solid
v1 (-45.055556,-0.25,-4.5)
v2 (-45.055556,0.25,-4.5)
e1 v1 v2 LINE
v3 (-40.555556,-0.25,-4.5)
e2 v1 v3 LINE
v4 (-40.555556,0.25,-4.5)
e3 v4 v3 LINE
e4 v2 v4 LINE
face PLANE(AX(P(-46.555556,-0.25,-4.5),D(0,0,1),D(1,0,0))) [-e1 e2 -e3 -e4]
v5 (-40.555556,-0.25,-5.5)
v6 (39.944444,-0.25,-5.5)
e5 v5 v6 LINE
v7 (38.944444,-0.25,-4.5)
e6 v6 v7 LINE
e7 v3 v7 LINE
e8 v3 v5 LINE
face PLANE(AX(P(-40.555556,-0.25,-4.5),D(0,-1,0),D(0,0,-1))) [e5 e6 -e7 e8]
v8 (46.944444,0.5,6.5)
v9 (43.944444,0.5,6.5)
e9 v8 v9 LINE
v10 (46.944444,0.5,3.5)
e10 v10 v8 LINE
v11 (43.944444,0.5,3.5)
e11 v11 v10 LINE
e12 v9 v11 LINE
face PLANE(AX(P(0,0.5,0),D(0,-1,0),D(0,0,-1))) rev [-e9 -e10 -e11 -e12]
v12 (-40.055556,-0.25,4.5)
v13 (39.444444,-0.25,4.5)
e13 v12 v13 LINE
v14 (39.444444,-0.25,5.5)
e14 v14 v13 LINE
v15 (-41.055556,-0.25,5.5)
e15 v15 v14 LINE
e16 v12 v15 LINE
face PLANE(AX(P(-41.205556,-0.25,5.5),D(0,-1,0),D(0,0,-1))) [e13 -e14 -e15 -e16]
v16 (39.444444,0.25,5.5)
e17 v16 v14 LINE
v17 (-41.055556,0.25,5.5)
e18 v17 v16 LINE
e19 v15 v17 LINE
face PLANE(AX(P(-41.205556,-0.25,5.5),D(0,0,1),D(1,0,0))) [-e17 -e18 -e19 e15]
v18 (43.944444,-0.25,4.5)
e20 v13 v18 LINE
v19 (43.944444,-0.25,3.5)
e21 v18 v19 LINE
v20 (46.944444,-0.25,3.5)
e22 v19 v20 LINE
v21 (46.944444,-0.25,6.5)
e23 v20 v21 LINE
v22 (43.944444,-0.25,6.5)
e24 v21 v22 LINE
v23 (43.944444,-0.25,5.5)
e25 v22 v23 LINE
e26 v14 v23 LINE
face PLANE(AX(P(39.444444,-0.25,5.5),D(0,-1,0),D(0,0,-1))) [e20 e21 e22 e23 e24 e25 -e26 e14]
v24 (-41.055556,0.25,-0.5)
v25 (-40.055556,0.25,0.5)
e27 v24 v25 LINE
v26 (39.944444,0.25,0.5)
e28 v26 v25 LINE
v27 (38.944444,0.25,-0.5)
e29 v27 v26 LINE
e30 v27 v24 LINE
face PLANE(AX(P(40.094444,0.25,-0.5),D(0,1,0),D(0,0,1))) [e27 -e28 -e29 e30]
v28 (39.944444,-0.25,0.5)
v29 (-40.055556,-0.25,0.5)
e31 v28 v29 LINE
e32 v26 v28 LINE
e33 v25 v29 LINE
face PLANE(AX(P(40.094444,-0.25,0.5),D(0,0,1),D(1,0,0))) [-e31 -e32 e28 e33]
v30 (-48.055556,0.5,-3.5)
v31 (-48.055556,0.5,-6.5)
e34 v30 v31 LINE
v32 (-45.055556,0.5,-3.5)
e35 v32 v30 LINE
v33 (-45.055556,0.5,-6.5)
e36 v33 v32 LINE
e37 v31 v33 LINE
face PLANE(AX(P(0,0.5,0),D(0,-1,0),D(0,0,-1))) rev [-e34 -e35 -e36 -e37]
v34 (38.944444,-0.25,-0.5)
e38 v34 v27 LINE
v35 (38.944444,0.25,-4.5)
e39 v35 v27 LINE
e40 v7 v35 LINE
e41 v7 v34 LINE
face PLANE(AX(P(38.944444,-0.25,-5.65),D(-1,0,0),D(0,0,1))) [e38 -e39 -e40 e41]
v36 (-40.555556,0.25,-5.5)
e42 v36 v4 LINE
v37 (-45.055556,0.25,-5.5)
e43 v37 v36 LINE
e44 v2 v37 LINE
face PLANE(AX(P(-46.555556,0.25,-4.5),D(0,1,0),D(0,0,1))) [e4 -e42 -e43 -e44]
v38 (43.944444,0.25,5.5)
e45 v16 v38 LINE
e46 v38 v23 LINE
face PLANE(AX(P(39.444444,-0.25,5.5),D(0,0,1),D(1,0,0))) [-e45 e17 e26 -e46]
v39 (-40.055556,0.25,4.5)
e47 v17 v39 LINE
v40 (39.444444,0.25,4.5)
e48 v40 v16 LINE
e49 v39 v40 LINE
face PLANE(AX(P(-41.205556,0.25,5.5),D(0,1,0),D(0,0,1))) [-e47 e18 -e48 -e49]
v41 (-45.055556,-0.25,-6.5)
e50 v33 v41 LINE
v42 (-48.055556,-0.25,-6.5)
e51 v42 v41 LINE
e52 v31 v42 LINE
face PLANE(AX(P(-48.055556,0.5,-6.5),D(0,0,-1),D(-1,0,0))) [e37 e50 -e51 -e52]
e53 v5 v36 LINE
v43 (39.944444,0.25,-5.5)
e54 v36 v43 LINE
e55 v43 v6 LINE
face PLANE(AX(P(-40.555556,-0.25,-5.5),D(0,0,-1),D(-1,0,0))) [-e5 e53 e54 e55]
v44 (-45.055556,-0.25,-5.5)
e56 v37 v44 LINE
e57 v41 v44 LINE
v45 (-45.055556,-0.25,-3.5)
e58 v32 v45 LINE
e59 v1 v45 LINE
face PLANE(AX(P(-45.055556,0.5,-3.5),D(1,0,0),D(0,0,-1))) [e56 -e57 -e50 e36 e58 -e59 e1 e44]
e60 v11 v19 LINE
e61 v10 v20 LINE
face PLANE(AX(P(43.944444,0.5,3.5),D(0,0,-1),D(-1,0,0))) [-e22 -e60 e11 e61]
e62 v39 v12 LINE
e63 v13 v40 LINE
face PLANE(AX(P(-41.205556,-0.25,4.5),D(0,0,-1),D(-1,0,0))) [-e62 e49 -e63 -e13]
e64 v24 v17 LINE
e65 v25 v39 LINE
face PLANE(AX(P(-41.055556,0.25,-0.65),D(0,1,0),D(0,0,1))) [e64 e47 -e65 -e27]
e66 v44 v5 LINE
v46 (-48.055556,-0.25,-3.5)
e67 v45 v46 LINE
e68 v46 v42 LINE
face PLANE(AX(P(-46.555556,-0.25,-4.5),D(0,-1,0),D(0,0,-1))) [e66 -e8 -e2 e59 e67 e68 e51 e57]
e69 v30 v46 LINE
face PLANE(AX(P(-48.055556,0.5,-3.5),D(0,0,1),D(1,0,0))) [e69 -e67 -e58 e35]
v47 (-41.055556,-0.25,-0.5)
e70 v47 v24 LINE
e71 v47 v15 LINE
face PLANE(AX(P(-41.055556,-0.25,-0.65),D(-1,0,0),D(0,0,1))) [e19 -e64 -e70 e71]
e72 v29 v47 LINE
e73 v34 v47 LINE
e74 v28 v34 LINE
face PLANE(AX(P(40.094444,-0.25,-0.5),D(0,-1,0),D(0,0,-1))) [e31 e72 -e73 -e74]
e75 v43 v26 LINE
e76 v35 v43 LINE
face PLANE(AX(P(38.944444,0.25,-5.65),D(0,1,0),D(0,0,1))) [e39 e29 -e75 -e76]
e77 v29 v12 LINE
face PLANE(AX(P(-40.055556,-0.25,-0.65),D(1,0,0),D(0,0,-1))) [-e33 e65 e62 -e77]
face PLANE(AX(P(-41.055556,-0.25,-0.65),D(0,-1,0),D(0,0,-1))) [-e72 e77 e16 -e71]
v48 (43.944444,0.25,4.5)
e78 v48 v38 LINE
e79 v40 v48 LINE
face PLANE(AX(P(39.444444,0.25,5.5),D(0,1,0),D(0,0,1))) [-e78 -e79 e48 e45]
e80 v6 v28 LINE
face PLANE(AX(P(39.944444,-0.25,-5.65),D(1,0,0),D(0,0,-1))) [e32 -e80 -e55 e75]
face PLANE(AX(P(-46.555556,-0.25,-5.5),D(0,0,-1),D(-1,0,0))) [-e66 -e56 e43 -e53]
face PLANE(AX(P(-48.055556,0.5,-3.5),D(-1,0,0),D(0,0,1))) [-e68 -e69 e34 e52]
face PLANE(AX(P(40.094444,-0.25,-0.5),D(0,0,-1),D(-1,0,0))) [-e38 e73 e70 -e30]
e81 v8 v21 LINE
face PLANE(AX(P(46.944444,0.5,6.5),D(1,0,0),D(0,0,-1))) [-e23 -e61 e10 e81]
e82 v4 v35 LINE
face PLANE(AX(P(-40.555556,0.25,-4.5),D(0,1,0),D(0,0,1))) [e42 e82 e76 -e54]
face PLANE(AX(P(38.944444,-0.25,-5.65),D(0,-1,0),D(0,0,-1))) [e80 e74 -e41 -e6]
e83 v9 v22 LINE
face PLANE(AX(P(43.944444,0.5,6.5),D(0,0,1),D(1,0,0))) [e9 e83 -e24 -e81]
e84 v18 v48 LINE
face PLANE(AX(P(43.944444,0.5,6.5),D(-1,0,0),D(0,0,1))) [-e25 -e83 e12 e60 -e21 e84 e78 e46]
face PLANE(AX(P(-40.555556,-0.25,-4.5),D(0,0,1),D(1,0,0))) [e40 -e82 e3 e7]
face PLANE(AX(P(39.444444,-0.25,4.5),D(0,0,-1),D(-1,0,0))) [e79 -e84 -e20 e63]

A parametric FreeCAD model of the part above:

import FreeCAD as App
import Part
import Sketcher
from FreeCAD import Vector
Q = App.Units.Quantity

doc = App.newDocument("Part")
body = doc.addObject("PartDesign::Body", "Body")

sketch1 = doc.addObject("Sketcher::SketchObject", "Sketch")
body.addObject(sketch1)
sketch1.AttachmentSupport = (doc.YZ_Plane, [""])
sketch1.MapMode = "FlatFace"
sketch1.AttachmentOffset = App.Placement(Vector(0, 0, 45.444444), App.Rotation())
sketch1.addGeometry(Part.LineSegment(Vector(0.2, 5.5, 0), Vector(-0.2, 5.5, 0)), False)
sketch1.addGeometry(Part.LineSegment(Vector(-0.2, 5.5, 0), Vector(-0.2, 4.5, 0)), False)
sketch1.addGeometry(Part.LineSegment(Vector(-0.2, 4.5, 0), Vector(0.2, 4.5, 0)), False)
sketch1.addGeometry(Part.LineSegment(Vector(0.2, 4.5, 0), Vector(0.2, 5.5, 0)), False)
sketch1.addConstraint(Sketcher.Constraint("Coincident", 0, 2, 1, 1))
sketch1.addConstraint(Sketcher.Constraint("Coincident", 1, 2, 2, 1))
sketch1.addConstraint(Sketcher.Constraint("Coincident", 2, 2, 3, 1))
sketch1.addConstraint(Sketcher.Constraint("Coincident", 3, 2, 0, 1))
sketch1.addConstraint(Sketcher.Constraint("Horizontal", 0))
sketch1.addConstraint(Sketcher.Constraint("Vertical", 1))
sketch1.addConstraint(Sketcher.Constraint("Horizontal", 2))
sketch1.addConstraint(Sketcher.Constraint("Vertical", 3))
sketch1.addConstraint(Sketcher.Constraint("DistanceY", 1, 2, 1, 1, Q("1 mm")))
sketch1.addConstraint(Sketcher.Constraint("DistanceX", 0, 2, 0, 1, Q("0.5 mm")))
sketch1.addConstraint(Sketcher.Constraint("DistanceY", -1, 1, 0, 2, Q("5.5 mm")))
sketch1.addConstraint(Sketcher.Constraint("DistanceX", 0, 2, -1, 1, Q("0.25 mm")))

sketch2 = doc.addObject("Sketcher::SketchObject", "Sketch001")
body.addObject(sketch2)
sketch2.AttachmentSupport = (doc.XZ_Plane, [""])
sketch2.MapMode = "FlatFace"
sketch2.addGeometry(Part.LineSegment(Vector(-47, -5, 0), Vector(39, -5, 0)), False)
sketch2.addGeometry(Part.LineSegment(Vector(39, -5, 0), Vector(39, 0, 0)), False)
sketch2.addGeometry(Part.LineSegment(Vector(39, 0, 0), Vector(-41, 0, 0)), False)
sketch2.addGeometry(Part.LineSegment(Vector(-41, 0, 0), Vector(-41, 5, 0)), False)
sketch2.addGeometry(Part.LineSegment(Vector(-41, 5, 0), Vector(45, 5, 0)), False)
sketch2.addConstraint(Sketcher.Constraint("Coincident", 0, 2, 1, 1))
sketch2.addConstraint(Sketcher.Constraint("Coincident", 1, 2, 2, 1))
sketch2.addConstraint(Sketcher.Constraint("Coincident", 2, 2, 3, 1))
sketch2.addConstraint(Sketcher.Constraint("Coincident", 3, 2, 4, 1))
sketch2.addConstraint(Sketcher.Constraint("Horizontal", 0))
sketch2.addConstraint(Sketcher.Constraint("Vertical", 1))
sketch2.addConstraint(Sketcher.Constraint("Horizontal", 2))
sketch2.addConstraint(Sketcher.Constraint("Vertical", 3))
sketch2.addConstraint(Sketcher.Constraint("Horizontal", 4))
sketch2.addConstraint(Sketcher.Constraint("PointOnObject", 1, 2, -1))
sketch2.addConstraint(Sketcher.Constraint("Equal", 0, 4))
sketch2.addConstraint(Sketcher.Constraint("Equal", 1, 3))
sketch2.addConstraint(Sketcher.Constraint("DistanceX", 0, 1, 0, 2, Q("86 mm")))
sketch2.addConstraint(Sketcher.Constraint("DistanceX", 2, 2, 2, 1, Q("80 mm")))
sketch2.addConstraint(Sketcher.Constraint("DistanceY", 1, 1, 1, 2, Q("5 mm")))
sketch2.addConstraint(Sketcher.Constraint("DistanceX", 0, 1, -1, 1, Q("46.555556 mm")))
doc.recompute()

additivepipe = doc.addObject("PartDesign::AdditivePipe", "AdditivePipe")
body.addObject(additivepipe)
additivepipe.Profile = sketch1
additivepipe.Spine = (sketch2, ["Edge1", "Edge2", "Edge3", "Edge4", "Edge5"])
additivepipe.Transition = "Right corner"

sketch3 = doc.addObject("Sketcher::SketchObject", "Sketch002")
body.addObject(sketch3)
sketch3.AttachmentSupport = (doc.XZ_Plane, [""])
sketch3.MapMode = "FlatFace"
sketch3.AttachmentOffset = App.Placement(Vector(0, 0, 0.25), App.Rotation())
sketch3.addGeometry(Part.LineSegment(Vector(-48.1, -3.5, 0), Vector(-48.1, -6.5, 0)), False)
sketch3.addGeometry(Part.LineSegment(Vector(-48.1, -6.5, 0), Vector(-45.1, -6.5, 0)), False)
sketch3.addGeometry(Part.LineSegment(Vector(-45.1, -6.5, 0), Vector(-45.1, -3.5, 0)), False)
sketch3.addGeometry(Part.LineSegment(Vector(-45.1, -3.5, 0), Vector(-48.1, -3.5, 0)), False)
sketch3.addGeometry(Part.LineSegment(Vector(43.9, 6.5, 0), Vector(43.9, 3.5, 0)), False)
sketch3.addGeometry(Part.LineSegment(Vector(43.9, 3.5, 0), Vector(46.9, 3.5, 0)), False)
sketch3.addGeometry(Part.LineSegment(Vector(46.9, 3.5, 0), Vector(46.9, 6.5, 0)), False)
sketch3.addGeometry(Part.LineSegment(Vector(46.9, 6.5, 0), Vector(43.9, 6.5, 0)), False)
sketch3.addConstraint(Sketcher.Constraint("Coincident", 0, 2, 1, 1))
sketch3.addConstraint(Sketcher.Constraint("Coincident", 1, 2, 2, 1))
sketch3.addConstraint(Sketcher.Constraint("Coincident", 2, 2, 3, 1))
sketch3.addConstraint(Sketcher.Constraint("Coincident", 3, 2, 0, 1))
sketch3.addConstraint(Sketcher.Constraint("Coincident", 4, 2, 5, 1))
sketch3.addConstraint(Sketcher.Constraint("Coincident", 5, 2, 6, 1))
sketch3.addConstraint(Sketcher.Constraint("Coincident", 6, 2, 7, 1))
sketch3.addConstraint(Sketcher.Constraint("Coincident", 7, 2, 4, 1))
sketch3.addConstraint(Sketcher.Constraint("Vertical", 0))
sketch3.addConstraint(Sketcher.Constraint("Horizontal", 1))
sketch3.addConstraint(Sketcher.Constraint("Vertical", 2))
sketch3.addConstraint(Sketcher.Constraint("Horizontal", 3))
sketch3.addConstraint(Sketcher.Constraint("Vertical", 4))
sketch3.addConstraint(Sketcher.Constraint("Horizontal", 5))
sketch3.addConstraint(Sketcher.Constraint("Vertical", 6))
sketch3.addConstraint(Sketcher.Constraint("Horizontal", 7))
sketch3.addConstraint(Sketcher.Constraint("Equal", 3, 5))
sketch3.addConstraint(Sketcher.Constraint("Equal", 7, 0))
sketch3.addConstraint(Sketcher.Constraint("Equal", 2, 4))
sketch3.addConstraint(Sketcher.Constraint("DistanceX", 1, 1, 1, 2, Q("3 mm")))
sketch3.addConstraint(Sketcher.Constraint("DistanceX", 2, 2, 4, 2, Q("89 mm")))
sketch3.addConstraint(Sketcher.Constraint("DistanceY", 2, 2, 4, 2, Q("7 mm")))
sketch3.addConstraint(Sketcher.Constraint("DistanceY", 0, 2, -1, 1, Q("6.5 mm")))
sketch3.addConstraint(Sketcher.Constraint("DistanceX", 0, 2, -1, 1, Q("48.055556 mm")))
pad1 = doc.addObject("PartDesign::Pad", "Pad")
body.addObject(pad1)
pad1.Profile = sketch3
pad1.Length = 0.75
pad1.Reversed = True

doc.recompute()
